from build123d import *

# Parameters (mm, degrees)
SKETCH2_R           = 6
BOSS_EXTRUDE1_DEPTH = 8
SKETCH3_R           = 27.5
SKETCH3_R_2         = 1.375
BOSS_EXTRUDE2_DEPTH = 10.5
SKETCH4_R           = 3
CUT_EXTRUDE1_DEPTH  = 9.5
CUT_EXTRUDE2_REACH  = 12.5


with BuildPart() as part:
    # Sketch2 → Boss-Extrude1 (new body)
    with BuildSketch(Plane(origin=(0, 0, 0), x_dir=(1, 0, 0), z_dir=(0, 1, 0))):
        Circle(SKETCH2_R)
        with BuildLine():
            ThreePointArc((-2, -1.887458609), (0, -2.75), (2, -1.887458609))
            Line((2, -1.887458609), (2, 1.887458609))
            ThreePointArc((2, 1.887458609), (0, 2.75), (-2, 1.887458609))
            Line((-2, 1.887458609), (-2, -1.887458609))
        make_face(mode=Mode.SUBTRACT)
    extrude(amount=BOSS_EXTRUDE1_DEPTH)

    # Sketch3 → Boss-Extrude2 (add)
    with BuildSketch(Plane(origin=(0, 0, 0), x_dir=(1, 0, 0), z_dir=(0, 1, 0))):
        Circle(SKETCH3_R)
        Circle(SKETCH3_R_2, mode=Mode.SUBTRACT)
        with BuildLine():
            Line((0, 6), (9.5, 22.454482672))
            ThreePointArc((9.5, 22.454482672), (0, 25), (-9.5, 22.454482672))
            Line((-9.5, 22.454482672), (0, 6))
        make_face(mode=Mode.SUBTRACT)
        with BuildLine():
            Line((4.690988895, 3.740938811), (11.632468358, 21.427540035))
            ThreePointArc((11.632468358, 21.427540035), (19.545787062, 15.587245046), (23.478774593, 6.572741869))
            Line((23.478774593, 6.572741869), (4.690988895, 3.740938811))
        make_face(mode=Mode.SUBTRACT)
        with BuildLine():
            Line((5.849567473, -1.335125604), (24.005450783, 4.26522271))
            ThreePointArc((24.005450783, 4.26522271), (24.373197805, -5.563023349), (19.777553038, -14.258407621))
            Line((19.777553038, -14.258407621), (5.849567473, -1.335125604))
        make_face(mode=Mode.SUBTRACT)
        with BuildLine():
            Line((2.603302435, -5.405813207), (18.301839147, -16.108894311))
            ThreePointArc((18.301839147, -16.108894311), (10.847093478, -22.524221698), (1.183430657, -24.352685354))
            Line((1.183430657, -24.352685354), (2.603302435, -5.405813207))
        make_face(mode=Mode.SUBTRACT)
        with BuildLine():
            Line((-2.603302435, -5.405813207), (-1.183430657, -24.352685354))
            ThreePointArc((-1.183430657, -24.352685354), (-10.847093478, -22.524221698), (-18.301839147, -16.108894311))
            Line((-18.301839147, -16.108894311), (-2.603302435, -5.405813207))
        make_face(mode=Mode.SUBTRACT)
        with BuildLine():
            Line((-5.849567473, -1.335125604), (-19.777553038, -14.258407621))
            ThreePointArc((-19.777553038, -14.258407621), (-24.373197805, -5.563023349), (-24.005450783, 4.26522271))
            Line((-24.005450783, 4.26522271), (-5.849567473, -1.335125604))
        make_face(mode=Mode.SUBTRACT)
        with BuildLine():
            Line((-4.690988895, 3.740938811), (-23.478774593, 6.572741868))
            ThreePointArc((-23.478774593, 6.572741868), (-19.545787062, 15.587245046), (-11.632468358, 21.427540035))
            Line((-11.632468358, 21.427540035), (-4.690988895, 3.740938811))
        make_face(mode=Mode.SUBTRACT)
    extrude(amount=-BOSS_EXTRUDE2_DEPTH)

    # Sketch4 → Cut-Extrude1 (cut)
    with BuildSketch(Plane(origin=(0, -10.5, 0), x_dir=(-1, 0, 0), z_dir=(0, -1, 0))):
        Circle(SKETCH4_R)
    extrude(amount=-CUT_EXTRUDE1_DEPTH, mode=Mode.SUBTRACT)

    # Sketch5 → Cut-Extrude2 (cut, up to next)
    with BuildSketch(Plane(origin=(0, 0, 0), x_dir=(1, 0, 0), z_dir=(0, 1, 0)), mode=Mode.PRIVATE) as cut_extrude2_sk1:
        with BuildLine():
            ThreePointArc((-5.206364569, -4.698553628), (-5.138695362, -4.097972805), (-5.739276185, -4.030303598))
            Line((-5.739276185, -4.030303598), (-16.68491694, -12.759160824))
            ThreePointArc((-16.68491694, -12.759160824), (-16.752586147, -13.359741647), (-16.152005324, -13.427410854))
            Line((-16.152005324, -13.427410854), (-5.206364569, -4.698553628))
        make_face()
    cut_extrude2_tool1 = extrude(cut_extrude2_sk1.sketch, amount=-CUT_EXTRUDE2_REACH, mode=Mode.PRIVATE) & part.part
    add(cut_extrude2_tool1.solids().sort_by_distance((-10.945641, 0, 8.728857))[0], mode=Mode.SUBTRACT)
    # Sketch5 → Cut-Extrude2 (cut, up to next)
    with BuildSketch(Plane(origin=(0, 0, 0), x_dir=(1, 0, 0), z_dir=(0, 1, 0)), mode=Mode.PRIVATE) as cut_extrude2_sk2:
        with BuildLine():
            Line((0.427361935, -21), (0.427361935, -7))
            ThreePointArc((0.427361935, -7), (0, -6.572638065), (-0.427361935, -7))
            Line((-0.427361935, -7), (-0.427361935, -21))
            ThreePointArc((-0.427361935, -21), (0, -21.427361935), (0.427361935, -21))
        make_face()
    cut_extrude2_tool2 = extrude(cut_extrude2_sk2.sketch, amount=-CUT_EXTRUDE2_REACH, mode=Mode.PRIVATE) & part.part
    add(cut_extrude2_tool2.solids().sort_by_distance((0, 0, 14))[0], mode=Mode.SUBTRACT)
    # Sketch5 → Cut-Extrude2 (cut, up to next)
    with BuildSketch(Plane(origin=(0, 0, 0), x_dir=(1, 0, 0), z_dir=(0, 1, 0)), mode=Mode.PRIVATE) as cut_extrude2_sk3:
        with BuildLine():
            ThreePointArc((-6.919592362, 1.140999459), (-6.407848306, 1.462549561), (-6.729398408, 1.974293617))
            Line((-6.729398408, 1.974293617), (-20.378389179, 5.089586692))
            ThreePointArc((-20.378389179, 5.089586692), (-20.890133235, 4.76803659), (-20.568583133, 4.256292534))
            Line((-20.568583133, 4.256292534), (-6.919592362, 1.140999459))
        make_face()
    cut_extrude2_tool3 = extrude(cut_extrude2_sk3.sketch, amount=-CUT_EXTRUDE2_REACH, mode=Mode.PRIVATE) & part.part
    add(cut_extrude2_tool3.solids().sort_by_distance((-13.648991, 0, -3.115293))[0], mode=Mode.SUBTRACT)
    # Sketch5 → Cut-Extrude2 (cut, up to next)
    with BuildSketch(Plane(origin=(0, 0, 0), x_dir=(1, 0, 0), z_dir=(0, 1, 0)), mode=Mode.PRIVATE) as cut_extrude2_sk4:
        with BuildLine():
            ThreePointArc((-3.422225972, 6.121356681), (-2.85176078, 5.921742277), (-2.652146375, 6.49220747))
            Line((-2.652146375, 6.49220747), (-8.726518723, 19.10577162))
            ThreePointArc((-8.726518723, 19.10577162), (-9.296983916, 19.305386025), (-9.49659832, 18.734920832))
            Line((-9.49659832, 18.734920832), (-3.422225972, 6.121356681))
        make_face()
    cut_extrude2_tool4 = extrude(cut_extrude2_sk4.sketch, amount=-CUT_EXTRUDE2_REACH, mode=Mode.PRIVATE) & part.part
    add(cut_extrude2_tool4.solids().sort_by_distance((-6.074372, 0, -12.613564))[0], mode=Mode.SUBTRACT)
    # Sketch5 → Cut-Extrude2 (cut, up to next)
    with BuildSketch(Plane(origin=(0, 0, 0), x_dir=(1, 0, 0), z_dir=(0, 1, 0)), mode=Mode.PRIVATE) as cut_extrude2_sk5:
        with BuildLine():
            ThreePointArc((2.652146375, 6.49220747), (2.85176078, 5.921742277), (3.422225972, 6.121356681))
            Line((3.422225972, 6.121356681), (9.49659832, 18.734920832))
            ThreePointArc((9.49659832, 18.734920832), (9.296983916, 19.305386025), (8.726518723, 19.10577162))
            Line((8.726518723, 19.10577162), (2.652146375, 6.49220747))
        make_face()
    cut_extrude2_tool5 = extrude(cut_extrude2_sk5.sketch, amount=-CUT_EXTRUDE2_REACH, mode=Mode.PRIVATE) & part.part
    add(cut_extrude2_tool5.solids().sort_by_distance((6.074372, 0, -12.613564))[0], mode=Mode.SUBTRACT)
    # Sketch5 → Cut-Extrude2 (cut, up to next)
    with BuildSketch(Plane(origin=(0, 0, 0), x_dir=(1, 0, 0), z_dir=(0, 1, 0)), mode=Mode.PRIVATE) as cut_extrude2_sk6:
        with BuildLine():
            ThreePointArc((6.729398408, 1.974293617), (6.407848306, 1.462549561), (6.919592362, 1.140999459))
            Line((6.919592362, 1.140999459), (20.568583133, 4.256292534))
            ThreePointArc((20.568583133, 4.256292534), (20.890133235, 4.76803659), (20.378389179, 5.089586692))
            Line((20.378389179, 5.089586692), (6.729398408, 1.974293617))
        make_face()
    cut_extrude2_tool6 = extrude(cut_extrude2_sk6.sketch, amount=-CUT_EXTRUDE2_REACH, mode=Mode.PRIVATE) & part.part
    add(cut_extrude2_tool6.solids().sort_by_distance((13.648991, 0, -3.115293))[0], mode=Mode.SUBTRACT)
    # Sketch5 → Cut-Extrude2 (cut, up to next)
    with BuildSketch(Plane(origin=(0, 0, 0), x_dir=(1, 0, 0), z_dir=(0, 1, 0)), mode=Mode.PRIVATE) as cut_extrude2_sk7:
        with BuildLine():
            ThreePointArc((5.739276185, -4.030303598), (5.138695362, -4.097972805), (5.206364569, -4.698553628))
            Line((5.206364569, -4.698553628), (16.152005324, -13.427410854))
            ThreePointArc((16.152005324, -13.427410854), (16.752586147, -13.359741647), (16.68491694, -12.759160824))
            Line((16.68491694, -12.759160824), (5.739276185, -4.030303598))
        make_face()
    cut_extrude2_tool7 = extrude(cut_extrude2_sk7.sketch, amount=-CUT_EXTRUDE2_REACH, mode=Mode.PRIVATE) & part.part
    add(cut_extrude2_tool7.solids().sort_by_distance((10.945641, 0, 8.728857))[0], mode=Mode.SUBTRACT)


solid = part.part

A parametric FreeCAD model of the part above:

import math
import FreeCAD as App
import Part
import Sketcher
Q = App.Units.Quantity

doc = App.newDocument("Part")
params = doc.addObject("Spreadsheet::Sheet", "Params")
for row, (alias, value) in enumerate([
    ("sketch1_diameter", "12 mm"),
    ("sketch1_radius", "2.75 mm"),
    ("pad1_length", "8 mm"),
    ("sketch2_diameter", "55 mm"),
    ("sketch2_radius", "19 mm"),
    ("sketch2_diameter2", "2.75 mm"),
    ("pad2_length", "10.5 mm"),
    ("sketch3_diameter", "6 mm"),
    ("pocket1_length", "9.5 mm"),
    ("sketch4_length", "14 mm"),
    ("sketch5_height", "14 mm"),
    ("sketch6_length", "14 mm"),
    ("sketch7_length", "14 mm"),
    ("sketch7_length2", "14 mm"),
    ("sketch8_length", "14 mm"),
    ("sketch8_length2", "14 mm"),
    ("sketch9_length", "14 mm"),
    ("sketch10_length", "14 mm"),
], start=1):
    params.set(f"A{row}", alias)
    params.set(f"B{row}", "=" + value)
    params.setAlias(f"B{row}", alias)

body = doc.addObject("PartDesign::Body", "Body")

# Sketch on XZ plane
sketch1 = doc.addObject("Sketcher::SketchObject", "Sketch")
body.addObject(sketch1)
sketch1.AttachmentSupport = (doc.XZ_Plane, [""])
sketch1.MapMode = "FlatFace"
sketch1.addGeometry([
    Part.Circle(App.Vector(0, 0, 0), App.Vector(0, 0, 1), 6),  # 0
    Part.ArcOfCircle(Part.Circle(App.Vector(0, 0, 0), App.Vector(0, 0, 1), 2.8), math.radians(43), math.radians(137)),  # 1
    Part.LineSegment(App.Vector(-2, 1.9, 0), App.Vector(-2, -1.9, 0)),  # 2
    Part.ArcOfCircle(Part.Circle(App.Vector(0, 0, 0), App.Vector(0, 0, 1), 2.8), math.radians(-137), math.radians(-43)),  # 3
    Part.LineSegment(App.Vector(2, -1.9, 0), App.Vector(2, 1.9, 0)),  # 4
], False)
sketch1.addConstraint([
    Sketcher.Constraint("Coincident", 1, 2, 2, 1),
    Sketcher.Constraint("Coincident", 2, 2, 3, 1),
    Sketcher.Constraint("Coincident", 3, 2, 4, 1),
    Sketcher.Constraint("Coincident", 4, 2, 1, 1),
    Sketcher.Constraint("Vertical", 2),
    Sketcher.Constraint("Vertical", 4),
    Sketcher.Constraint("Coincident", 0, 3, -1, 1),
    Sketcher.Constraint("Coincident", 1, 3, -1, 1),
    Sketcher.Constraint("Coincident", 3, 3, -1, 1),
    Sketcher.Constraint("Equal", 1, 3),
    Sketcher.Constraint("Horizontal", 2, 2, 3, 2),
    Sketcher.Constraint("Diameter", 0, 12.0),
    Sketcher.Constraint("Radius", 1, 2.75),
    Sketcher.Constraint("DistanceX", 1, 2, -1, 1, 2.0),
])
sketch1.setExpression("Constraints[11]", "Params.sketch1_diameter")
sketch1.setExpression("Constraints[12]", "Params.sketch1_radius")
pad1 = doc.addObject("PartDesign::Pad", "Pad")
body.addObject(pad1)
pad1.Profile = sketch1
pad1.setExpression("Length", "Params.pad1_length")
pad1.Reversed = True

# Sketch on XZ plane
sketch2 = doc.addObject("Sketcher::SketchObject", "Sketch001")
body.addObject(sketch2)
sketch2.AttachmentSupport = (doc.XZ_Plane, [""])
sketch2.MapMode = "FlatFace"
sketch2.addGeometry([
    Part.Circle(App.Vector(0, 0, 0), App.Vector(0, 0, 1), 27.5),  # 0
    Part.LineSegment(App.Vector(-18.3, 16.1, 0), App.Vector(-2.6, 5.4, 0)),  # 1
    Part.LineSegment(App.Vector(-2.6, 5.4, 0), App.Vector(-1.2, 24.4, 0)),  # 2
    Part.ArcOfCircle(Part.Circle(App.Vector(-2.6, 5.4, 0), App.Vector(0, 0, 1), 19), math.radians(86), math.radians(146)),  # 3
    Part.LineSegment(App.Vector(-24, -4.3, 0), App.Vector(-5.8, 1.3, 0)),  # 4
    Part.LineSegment(App.Vector(-5.8, 1.3, 0), App.Vector(-19.8, 14.3, 0)),  # 5
    Part.ArcOfCircle(Part.Circle(App.Vector(-5.8, 1.3, 0), App.Vector(0, 0, 1), 19), math.radians(137), math.radians(197)),  # 6
    Part.Circle(App.Vector(0, 0, 0), App.Vector(0, 0, 1), 1.4),  # 7
    Part.LineSegment(App.Vector(1.2, 24.4, 0), App.Vector(2.6, 5.4, 0)),  # 8
    Part.LineSegment(App.Vector(2.6, 5.4, 0), App.Vector(18.3, 16.1, 0)),  # 9
    Part.ArcOfCircle(Part.Circle(App.Vector(2.6, 5.4, 0), App.Vector(0, 0, 1), 19), math.radians(34), math.radians(94)),  # 10
    Part.LineSegment(App.Vector(19.8, 14.3, 0), App.Vector(5.8, 1.3, 0)),  # 11
    Part.LineSegment(App.Vector(5.8, 1.3, 0), App.Vector(24, -4.3, 0)),  # 12
    Part.ArcOfCircle(Part.Circle(App.Vector(5.8, 1.3, 0), App.Vector(0, 0, 1), 19), math.radians(-17), math.radians(43)),  # 13
    Part.LineSegment(App.Vector(-11.6, -21.4, 0), App.Vector(-4.7, -3.7, 0)),  # 14
    Part.LineSegment(App.Vector(-4.7, -3.7, 0), App.Vector(-23.5, -6.6, 0)),  # 15
    Part.ArcOfCircle(Part.Circle(App.Vector(-4.7, -3.7, 0), App.Vector(0, 0, 1), 19), math.radians(-171), math.radians(-111)),  # 16
    Part.LineSegment(App.Vector(23.5, -6.6, 0), App.Vector(4.7, -3.7, 0)),  # 17
    Part.LineSegment(App.Vector(4.7, -3.7, 0), App.Vector(11.6, -21.4, 0)),  # 18
    Part.ArcOfCircle(Part.Circle(App.Vector(4.7, -3.7, 0), App.Vector(0, 0, 1), 19), math.radians(-69), math.radians(-9)),  # 19
    Part.LineSegment(App.Vector(9.5, -22.5, 0), App.Vector(0, -6, 0)),  # 20
    Part.LineSegment(App.Vector(0, -6, 0), App.Vector(-9.5, -22.5, 0)),  # 21
    Part.ArcOfCircle(Part.Circle(App.Vector(0, -6, 0), App.Vector(0, 0, 1), 19), math.radians(-120), math.radians(-60)),  # 22
], False)
sketch2.addConstraint([
    Sketcher.Constraint("Coincident", 1, 2, 2, 1),
    Sketcher.Constraint("Coincident", 2, 2, 3, 1),
    Sketcher.Constraint("Coincident", 3, 2, 1, 1),
    Sketcher.Constraint("Coincident", 4, 2, 5, 1),
    Sketcher.Constraint("Coincident", 5, 2, 6, 1),
    Sketcher.Constraint("Coincident", 6, 2, 4, 1),
    Sketcher.Constraint("Coincident", 8, 2, 9, 1),
    Sketcher.Constraint("Coincident", 9, 2, 10, 1),
    Sketcher.Constraint("Coincident", 10, 2, 8, 1),
    Sketcher.Constraint("Coincident", 11, 2, 12, 1),
    Sketcher.Constraint("Coincident", 12, 2, 13, 1),
    Sketcher.Constraint("Coincident", 13, 2, 11, 1),
    Sketcher.Constraint("Coincident", 14, 2, 15, 1),
    Sketcher.Constraint("Coincident", 15, 2, 16, 1),
    Sketcher.Constraint("Coincident", 16, 2, 14, 1),
    Sketcher.Constraint("Coincident", 17, 2, 18, 1),
    Sketcher.Constraint("Coincident", 18, 2, 19, 1),
    Sketcher.Constraint("Coincident", 19, 2, 17, 1),
    Sketcher.Constraint("Coincident", 20, 2, 21, 1),
    Sketcher.Constraint("Coincident", 21, 2, 22, 1),
    Sketcher.Constraint("Coincident", 22, 2, 20, 1),
    Sketcher.Constraint("Coincident", 0, 3, -1, 1),
    Sketcher.Constraint("Coincident", 7, 3, -1, 1),
    Sketcher.Constraint("Coincident", 1, 2, 3, 3),
    Sketcher.Constraint("Coincident", 4, 2, 6, 3),
    Sketcher.Constraint("Coincident", 8, 2, 10, 3),
    Sketcher.Constraint("Coincident", 11, 2, 13, 3),
    Sketcher.Constraint("Coincident", 14, 2, 16, 3),
    Sketcher.Constraint("Coincident", 17, 2, 19, 3),
    Sketcher.Constraint("Coincident", 20, 2, 22, 3),
    Sketcher.Constraint("Equal", 3, 6),
    Sketcher.Constraint("Equal", 6, 10),
    Sketcher.Constraint("Equal", 10, 13),
    Sketcher.Constraint("Equal", 13, 16),
    Sketcher.Constraint("Equal", 16, 19),
    Sketcher.Constraint("Equal", 19, 22),
    Sketcher.Constraint("Symmetric", 3, 3, 10, 3, -2),
    Sketcher.Constraint("Symmetric", 6, 3, 13, 3, -2),
    Sketcher.Constraint("Symmetric", 16, 3, 19, 3, -2),
    Sketcher.Constraint("Symmetric", 21, 2, 22, 2, -2),
    Sketcher.Constraint("Horizontal", 3, 2, 9, 2),
    Sketcher.Constraint("Horizontal", 2, 2, 10, 2),
    Sketcher.Constraint("Horizontal", 6, 2, 12, 2),
    Sketcher.Constraint("Horizontal", 5, 2, 13, 2),
    Sketcher.Constraint("Horizontal", 16, 2, 18, 2),
    Sketcher.Constraint("Horizontal", 15, 2, 19, 2),
    Sketcher.Constraint("Diameter", 0, 55.0),
    Sketcher.Constraint("Radius", 3, 19.0),
    Sketcher.Constraint("Diameter", 7, 2.75),
    Sketcher.Constraint("Angle", 20, Q("120 deg")),
    Sketcher.Constraint("DistanceY", 22, 3, -1, 1, 6.0),
    Sketcher.Constraint("DistanceX", 2, 2, 13, 3, 7.032998),
    Sketcher.Constraint("DistanceY", 16, 2, 16, 3, 17.686601),
    Sketcher.Constraint("DistanceY", 16, 2, 15, 2, 14.854798),
    Sketcher.Constraint("DistanceX", 16, 3, -1, 1, 4.690989),
    Sketcher.Constraint("DistanceY", 16, 3, -1, 1, 3.740939),
    Sketcher.Constraint("DistanceX", 2, 2, -1, 1, 1.183431),
    Sketcher.Constraint("DistanceX", 3, 2, -1, 1, 18.301839),
    Sketcher.Constraint("DistanceX", 6, 2, -1, 1, 24.005451),
    Sketcher.Constraint("DistanceX", 6, 3, 10, 3, 8.45287),
    Sketcher.Constraint("DistanceY", 6, 3, 2, 2, 23.01756),
    Sketcher.Constraint("DistanceX", 5, 2, 3, 3, 17.174251),
    Sketcher.Constraint("DistanceY", 15, 2, 6, 2, 2.307519),
])
sketch2.setExpression("Constraints[46]", "Params.sketch2_diameter")
sketch2.setExpression("Constraints[47]", "Params.sketch2_radius")
sketch2.setExpression("Constraints[48]", "Params.sketch2_diameter2")
pad2 = doc.addObject("PartDesign::Pad", "Pad001")
body.addObject(pad2)
pad2.Profile = sketch2
pad2.setExpression("Length", "Params.pad2_length")

# Sketch on XZ plane
sketch3 = doc.addObject("Sketcher::SketchObject", "Sketch002")
body.addObject(sketch3)
sketch3.AttachmentSupport = (doc.XZ_Plane, [""])
sketch3.MapMode = "FlatFace"
sketch3.AttachmentOffset = App.Placement(App.Vector(0, 0, 10.5), App.Rotation())
sketch3.addGeometry(Part.Circle(App.Vector(0, 0, 0), App.Vector(0, 0, 1), 3), False)
sketch3.addConstraint([
    Sketcher.Constraint("Coincident", 0, 3, -1, 1),
    Sketcher.Constraint("Diameter", 0, 6.0),
])
sketch3.setExpression("Constraints[1]", "Params.sketch3_diameter")
pocket1 = doc.addObject("PartDesign::Pocket", "Pocket")
body.addObject(pocket1)
pocket1.Profile = sketch3
pocket1.setExpression("Length", "Params.pocket1_length")

# Sketch on XZ plane
sketch4 = doc.addObject("Sketcher::SketchObject", "Sketch003")
body.addObject(sketch4)
sketch4.AttachmentSupport = (doc.XZ_Plane, [""])
sketch4.MapMode = "FlatFace"
sketch4.addGeometry([
    Part.ArcOfCircle(Part.Circle(App.Vector(-5.47, 4.36, 0), App.Vector(0, 0, 1), 0.43), math.radians(-129), math.radians(51)),
    Part.LineSegment(App.Vector(-5.74, 4.03, 0), App.Vector(-16.68, 12.76, 0)),
    Part.ArcOfCircle(Part.Circle(App.Vector(-16.42, 13.09, 0), App.Vector(0, 0, 1), 0.43), math.radians(51), math.radians(231)),
    Part.LineSegment(App.Vector(-16.15, 13.43, 0), App.Vector(-5.21, 4.7, 0)),
], False)
sketch4.addConstraint([
    Sketcher.Constraint("Tangent", 0, 1, 1, 1),
    Sketcher.Constraint("Tangent", 1, 2, 2, 2),
    Sketcher.Constraint("Tangent", 2, 1, 3, 1),
    Sketcher.Constraint("Tangent", 3, 2, 0, 2),
    Sketcher.Constraint("Equal", 0, 2),
    Sketcher.Constraint("Distance", 1, 14.0),
    Sketcher.Constraint("Radius", 0, 0.427362),
    Sketcher.Constraint("DistanceX", 0, 3, -1, 1, 5.47282),
    Sketcher.Constraint("DistanceY", -1, 1, 0, 3, 4.364429),
    Sketcher.Constraint("DistanceX", 2, 3, -1, 1, 16.418461),
])
sketch4.setExpression("Constraints[5]", "Params.sketch4_length")
pocket2 = doc.addObject("PartDesign::Pocket", "Pocket001")
body.addObject(pocket2)
pocket2.Profile = sketch4
pocket2.Type = "UpToFirst"
pocket2.Reversed = True

# Sketch on XZ plane
sketch5 = doc.addObject("Sketcher::SketchObject", "Sketch004")
body.addObject(sketch5)
sketch5.AttachmentSupport = (doc.XZ_Plane, [""])
sketch5.MapMode = "FlatFace"
sketch5.addGeometry([
    Part.LineSegment(App.Vector(0.43, 21, 0), App.Vector(0.43, 7, 0)),
    Part.ArcOfCircle(Part.Circle(App.Vector(0, 7, 0), App.Vector(0, 0, 1), 0.43), math.radians(180), math.radians(360)),
    Part.LineSegment(App.Vector(-0.43, 7, 0), App.Vector(-0.43, 21, 0)),
    Part.ArcOfCircle(Part.Circle(App.Vector(0, 21, 0), App.Vector(0, 0, 1), 0.43), math.radians(0), math.radians(180)),
], False)
sketch5.addConstraint([
    Sketcher.Constraint("Tangent", 0, 2, 1, 2),
    Sketcher.Constraint("Tangent", 1, 1, 2, 1),
    Sketcher.Constraint("Tangent", 2, 2, 3, 2),
    Sketcher.Constraint("Tangent", 3, 1, 0, 1),
    Sketcher.Constraint("Vertical", 0),
    Sketcher.Constraint("Vertical", 2),
    Sketcher.Constraint("PointOnObject", 1, 3, -2),
    Sketcher.Constraint("DistanceY", 0, 2, 0, 1, 14.0),
    Sketcher.Constraint("DistanceY", -1, 1, 1, 3, 7.0),
    Sketcher.Constraint("Radius", 1, 0.427362),
])
sketch5.setExpression("Constraints[7]", "Params.sketch5_height")
pocket3 = doc.addObject("PartDesign::Pocket", "Pocket002")
body.addObject(pocket3)
pocket3.Profile = sketch5
pocket3.Type = "UpToFirst"
pocket3.Reversed = True

# Sketch on XZ plane
sketch6 = doc.addObject("Sketcher::SketchObject", "Sketch005")
body.addObject(sketch6)
sketch6.AttachmentSupport = (doc.XZ_Plane, [""])
sketch6.MapMode = "FlatFace"
sketch6.addGeometry([
    Part.ArcOfCircle(Part.Circle(App.Vector(-6.82, -1.56, 0), App.Vector(0, 0, 1), 0.43), math.radians(-77), math.radians(103)),
    Part.LineSegment(App.Vector(-6.73, -1.97, 0), App.Vector(-20.38, -5.09, 0)),
    Part.ArcOfCircle(Part.Circle(App.Vector(-20.47, -4.67, 0), App.Vector(0, 0, 1), 0.43), math.radians(103), math.radians(283)),
    Part.LineSegment(App.Vector(-20.57, -4.26, 0), App.Vector(-6.92, -1.14, 0)),
], False)
sketch6.addConstraint([
    Sketcher.Constraint("Tangent", 0, 1, 1, 1),
    Sketcher.Constraint("Tangent", 1, 2, 2, 2),
    Sketcher.Constraint("Tangent", 2, 1, 3, 1),
    Sketcher.Constraint("Tangent", 3, 2, 0, 2),
    Sketcher.Constraint("Equal", 0, 2),
    Sketcher.Constraint("Distance", 1, 14.0),
    Sketcher.Constraint("Radius", 0, 0.427362),
    Sketcher.Constraint("DistanceY", 3, 2, -1, 1, 1.140999),
    Sketcher.Constraint("DistanceY", 2, 1, 0, 1, 2.281999),
    Sketcher.Constraint("DistanceX", 0, 1, -1, 1, 6.729398),
])
sketch6.setExpression("Constraints[5]", "Params.sketch6_length")
pocket4 = doc.addObject("PartDesign::Pocket", "Pocket003")
body.addObject(pocket4)
pocket4.Profile = sketch6
pocket4.Type = "UpToFirst"
pocket4.Reversed = True

# Sketch on XZ plane
sketch7 = doc.addObject("Sketcher::SketchObject", "Sketch006")
body.addObject(sketch7)
sketch7.AttachmentSupport = (doc.XZ_Plane, [""])
sketch7.MapMode = "FlatFace"
sketch7.addGeometry([
    Part.ArcOfCircle(Part.Circle(App.Vector(-3.037186, -6.306782, 0), App.Vector(0, 0, 1), 0.427362), math.radians(-25.714286), math.radians(154.285714)),
    Part.LineSegment(App.Vector(-2.652146, -6.492207, 0), App.Vector(-8.726519, -19.105772, 0)),
    Part.ArcOfCircle(Part.Circle(App.Vector(-9.111559, -18.920346, 0), App.Vector(0, 0, 1), 0.427362), math.radians(154.285714), math.radians(334.285714)),
    Part.LineSegment(App.Vector(-9.496598, -18.734921, 0), App.Vector(-3.422226, -6.121357, 0)),
], False)
sketch7.addConstraint([
    Sketcher.Constraint("Coincident", 0, 1, 1, 1),
    Sketcher.Constraint("Coincident", 1, 2, 2, 2),
    Sketcher.Constraint("Coincident", 2, 1, 3, 1),
    Sketcher.Constraint("Coincident", 3, 2, 0, 2),
    Sketcher.Constraint("Distance", 1, 14.0),
    Sketcher.Constraint("Distance", 3, 14.0),
    Sketcher.Constraint("Radius", 0, 0.427362),
    Sketcher.Constraint("Radius", 2, 0.427362),
    Sketcher.Constraint("DistanceX", 2, 1, -1, 1, 9.496598),
    Sketcher.Constraint("DistanceX", 2, 3, -1, 1, 9.111559),
    Sketcher.Constraint("DistanceX", 1, 2, -1, 1, 8.726519),
    Sketcher.Constraint("DistanceY", 1, 2, -1, 1, 19.105772),
    Sketcher.Constraint("DistanceX", 0, 3, 0, 1, 0.38504),
    Sketcher.Constraint("DistanceY", 2, 3, 0, 1, 12.428139),
])
sketch7.setExpression("Constraints[4]", "Params.sketch7_length")
sketch7.setExpression("Constraints[5]", "Params.sketch7_length2")
pocket5 = doc.addObject("PartDesign::Pocket", "Pocket004")
body.addObject(pocket5)
pocket5.Profile = sketch7
pocket5.Type = "UpToFirst"
pocket5.Reversed = True

# Sketch on XZ plane
sketch8 = doc.addObject("Sketcher::SketchObject", "Sketch007")
body.addObject(sketch8)
sketch8.AttachmentSupport = (doc.XZ_Plane, [""])
sketch8.MapMode = "FlatFace"
sketch8.addGeometry([
    Part.ArcOfCircle(Part.Circle(App.Vector(3.037186, -6.306782, 0), App.Vector(0, 0, 1), 0.427362), math.radians(25.714286), math.radians(205.714286)),
    Part.LineSegment(App.Vector(3.422226, -6.121357, 0), App.Vector(9.496598, -18.734921, 0)),
    Part.ArcOfCircle(Part.Circle(App.Vector(9.111559, -18.920346, 0), App.Vector(0, 0, 1), 0.427362), math.radians(-154.285714), math.radians(25.714286)),
    Part.LineSegment(App.Vector(8.726519, -19.105772, 0), App.Vector(2.652146, -6.492207, 0)),
], False)
sketch8.addConstraint([
    Sketcher.Constraint("Coincident", 0, 1, 1, 1),
    Sketcher.Constraint("Coincident", 1, 2, 2, 2),
    Sketcher.Constraint("Coincident", 2, 1, 3, 1),
    Sketcher.Constraint("Coincident", 3, 2, 0, 2),
    Sketcher.Constraint("Distance", 1, 14.0),
    Sketcher.Constraint("Distance", 3, 14.0),
    Sketcher.Constraint("Radius", 0, 0.427362),
    Sketcher.Constraint("Radius", 2, 0.427362),
    Sketcher.Constraint("DistanceX", -1, 1, 1, 2, 9.496598),
    Sketcher.Constraint("DistanceX", -1, 1, 2, 3, 9.111559),
    Sketcher.Constraint("DistanceY", 1, 2, -1, 1, 18.734921),
    Sketcher.Constraint("DistanceX", -1, 1, 2, 1, 8.726519),
    Sketcher.Constraint("DistanceX", 0, 3, 0, 1, 0.38504),
    Sketcher.Constraint("DistanceY", 2, 3, 0, 1, 12.79899),
])
sketch8.setExpression("Constraints[4]", "Params.sketch8_length")
sketch8.setExpression("Constraints[5]", "Params.sketch8_length2")
pocket6 = doc.addObject("PartDesign::Pocket", "Pocket005")
body.addObject(pocket6)
pocket6.Profile = sketch8
pocket6.Type = "UpToFirst"
pocket6.Reversed = True

# Sketch on XZ plane
sketch9 = doc.addObject("Sketcher::SketchObject", "Sketch008")
body.addObject(sketch9)
sketch9.AttachmentSupport = (doc.XZ_Plane, [""])
sketch9.MapMode = "FlatFace"
sketch9.addGeometry([
    Part.ArcOfCircle(Part.Circle(App.Vector(6.82, -1.56, 0), App.Vector(0, 0, 1), 0.43), math.radians(77), math.radians(257)),
    Part.LineSegment(App.Vector(6.92, -1.14, 0), App.Vector(20.57, -4.26, 0)),
    Part.ArcOfCircle(Part.Circle(App.Vector(20.47, -4.67, 0), App.Vector(0, 0, 1), 0.43), math.radians(-103), math.radians(77)),
    Part.LineSegment(App.Vector(20.38, -5.09, 0), App.Vector(6.73, -1.97, 0)),
], False)
sketch9.addConstraint([
    Sketcher.Constraint("Tangent", 0, 1, 1, 1),
    Sketcher.Constraint("Tangent", 1, 2, 2, 2),
    Sketcher.Constraint("Tangent", 2, 1, 3, 1),
    Sketcher.Constraint("Tangent", 3, 2, 0, 2),
    Sketcher.Constraint("Equal", 0, 2),
    Sketcher.Constraint("Distance", 1, 14.0),
    Sketcher.Constraint("Radius", 0, 0.427362),
    Sketcher.Constraint("DistanceY", 0, 1, -1, 1, 1.140999),
    Sketcher.Constraint("DistanceY", 1, 2, 3, 2, 2.281999),
    Sketcher.Constraint("DistanceX", -1, 1, 3, 2, 6.729398),
])
sketch9.setExpression("Constraints[5]", "Params.sketch9_length")
pocket7 = doc.addObject("PartDesign::Pocket", "Pocket006")
body.addObject(pocket7)
pocket7.Profile = sketch9
pocket7.Type = "UpToFirst"
pocket7.Reversed = True

# Sketch on XZ plane
sketch10 = doc.addObject("Sketcher::SketchObject", "Sketch009")
body.addObject(sketch10)
sketch10.AttachmentSupport = (doc.XZ_Plane, [""])
sketch10.MapMode = "FlatFace"
sketch10.addGeometry([
    Part.ArcOfCircle(Part.Circle(App.Vector(5.47, 4.36, 0), App.Vector(0, 0, 1), 0.43), math.radians(129), math.radians(309)),
    Part.LineSegment(App.Vector(5.21, 4.7, 0), App.Vector(16.15, 13.43, 0)),
    Part.ArcOfCircle(Part.Circle(App.Vector(16.42, 13.09, 0), App.Vector(0, 0, 1), 0.43), math.radians(-51), math.radians(129)),
    Part.LineSegment(App.Vector(16.68, 12.76, 0), App.Vector(5.74, 4.03, 0)),
], False)
sketch10.addConstraint([
    Sketcher.Constraint("Tangent", 0, 1, 1, 1),
    Sketcher.Constraint("Tangent", 1, 2, 2, 2),
    Sketcher.Constraint("Tangent", 2, 1, 3, 1),
    Sketcher.Constraint("Tangent", 3, 2, 0, 2),
    Sketcher.Constraint("Equal", 0, 2),
    Sketcher.Constraint("Distance", 1, 14.0),
    Sketcher.Constraint("Radius", 0, 0.427362),
    Sketcher.Constraint("DistanceX", -1, 1, 0, 3, 5.47282),
    Sketcher.Constraint("DistanceY", -1, 1, 0, 3, 4.364429),
    Sketcher.Constraint("DistanceX", -1, 1, 2, 3, 16.418461),
])
sketch10.setExpression("Constraints[5]", "Params.sketch10_length")
pocket8 = doc.addObject("PartDesign::Pocket", "Pocket007")
body.addObject(pocket8)
pocket8.Profile = sketch10
pocket8.Type = "UpToFirst"
pocket8.Reversed = True

doc.recompute()
